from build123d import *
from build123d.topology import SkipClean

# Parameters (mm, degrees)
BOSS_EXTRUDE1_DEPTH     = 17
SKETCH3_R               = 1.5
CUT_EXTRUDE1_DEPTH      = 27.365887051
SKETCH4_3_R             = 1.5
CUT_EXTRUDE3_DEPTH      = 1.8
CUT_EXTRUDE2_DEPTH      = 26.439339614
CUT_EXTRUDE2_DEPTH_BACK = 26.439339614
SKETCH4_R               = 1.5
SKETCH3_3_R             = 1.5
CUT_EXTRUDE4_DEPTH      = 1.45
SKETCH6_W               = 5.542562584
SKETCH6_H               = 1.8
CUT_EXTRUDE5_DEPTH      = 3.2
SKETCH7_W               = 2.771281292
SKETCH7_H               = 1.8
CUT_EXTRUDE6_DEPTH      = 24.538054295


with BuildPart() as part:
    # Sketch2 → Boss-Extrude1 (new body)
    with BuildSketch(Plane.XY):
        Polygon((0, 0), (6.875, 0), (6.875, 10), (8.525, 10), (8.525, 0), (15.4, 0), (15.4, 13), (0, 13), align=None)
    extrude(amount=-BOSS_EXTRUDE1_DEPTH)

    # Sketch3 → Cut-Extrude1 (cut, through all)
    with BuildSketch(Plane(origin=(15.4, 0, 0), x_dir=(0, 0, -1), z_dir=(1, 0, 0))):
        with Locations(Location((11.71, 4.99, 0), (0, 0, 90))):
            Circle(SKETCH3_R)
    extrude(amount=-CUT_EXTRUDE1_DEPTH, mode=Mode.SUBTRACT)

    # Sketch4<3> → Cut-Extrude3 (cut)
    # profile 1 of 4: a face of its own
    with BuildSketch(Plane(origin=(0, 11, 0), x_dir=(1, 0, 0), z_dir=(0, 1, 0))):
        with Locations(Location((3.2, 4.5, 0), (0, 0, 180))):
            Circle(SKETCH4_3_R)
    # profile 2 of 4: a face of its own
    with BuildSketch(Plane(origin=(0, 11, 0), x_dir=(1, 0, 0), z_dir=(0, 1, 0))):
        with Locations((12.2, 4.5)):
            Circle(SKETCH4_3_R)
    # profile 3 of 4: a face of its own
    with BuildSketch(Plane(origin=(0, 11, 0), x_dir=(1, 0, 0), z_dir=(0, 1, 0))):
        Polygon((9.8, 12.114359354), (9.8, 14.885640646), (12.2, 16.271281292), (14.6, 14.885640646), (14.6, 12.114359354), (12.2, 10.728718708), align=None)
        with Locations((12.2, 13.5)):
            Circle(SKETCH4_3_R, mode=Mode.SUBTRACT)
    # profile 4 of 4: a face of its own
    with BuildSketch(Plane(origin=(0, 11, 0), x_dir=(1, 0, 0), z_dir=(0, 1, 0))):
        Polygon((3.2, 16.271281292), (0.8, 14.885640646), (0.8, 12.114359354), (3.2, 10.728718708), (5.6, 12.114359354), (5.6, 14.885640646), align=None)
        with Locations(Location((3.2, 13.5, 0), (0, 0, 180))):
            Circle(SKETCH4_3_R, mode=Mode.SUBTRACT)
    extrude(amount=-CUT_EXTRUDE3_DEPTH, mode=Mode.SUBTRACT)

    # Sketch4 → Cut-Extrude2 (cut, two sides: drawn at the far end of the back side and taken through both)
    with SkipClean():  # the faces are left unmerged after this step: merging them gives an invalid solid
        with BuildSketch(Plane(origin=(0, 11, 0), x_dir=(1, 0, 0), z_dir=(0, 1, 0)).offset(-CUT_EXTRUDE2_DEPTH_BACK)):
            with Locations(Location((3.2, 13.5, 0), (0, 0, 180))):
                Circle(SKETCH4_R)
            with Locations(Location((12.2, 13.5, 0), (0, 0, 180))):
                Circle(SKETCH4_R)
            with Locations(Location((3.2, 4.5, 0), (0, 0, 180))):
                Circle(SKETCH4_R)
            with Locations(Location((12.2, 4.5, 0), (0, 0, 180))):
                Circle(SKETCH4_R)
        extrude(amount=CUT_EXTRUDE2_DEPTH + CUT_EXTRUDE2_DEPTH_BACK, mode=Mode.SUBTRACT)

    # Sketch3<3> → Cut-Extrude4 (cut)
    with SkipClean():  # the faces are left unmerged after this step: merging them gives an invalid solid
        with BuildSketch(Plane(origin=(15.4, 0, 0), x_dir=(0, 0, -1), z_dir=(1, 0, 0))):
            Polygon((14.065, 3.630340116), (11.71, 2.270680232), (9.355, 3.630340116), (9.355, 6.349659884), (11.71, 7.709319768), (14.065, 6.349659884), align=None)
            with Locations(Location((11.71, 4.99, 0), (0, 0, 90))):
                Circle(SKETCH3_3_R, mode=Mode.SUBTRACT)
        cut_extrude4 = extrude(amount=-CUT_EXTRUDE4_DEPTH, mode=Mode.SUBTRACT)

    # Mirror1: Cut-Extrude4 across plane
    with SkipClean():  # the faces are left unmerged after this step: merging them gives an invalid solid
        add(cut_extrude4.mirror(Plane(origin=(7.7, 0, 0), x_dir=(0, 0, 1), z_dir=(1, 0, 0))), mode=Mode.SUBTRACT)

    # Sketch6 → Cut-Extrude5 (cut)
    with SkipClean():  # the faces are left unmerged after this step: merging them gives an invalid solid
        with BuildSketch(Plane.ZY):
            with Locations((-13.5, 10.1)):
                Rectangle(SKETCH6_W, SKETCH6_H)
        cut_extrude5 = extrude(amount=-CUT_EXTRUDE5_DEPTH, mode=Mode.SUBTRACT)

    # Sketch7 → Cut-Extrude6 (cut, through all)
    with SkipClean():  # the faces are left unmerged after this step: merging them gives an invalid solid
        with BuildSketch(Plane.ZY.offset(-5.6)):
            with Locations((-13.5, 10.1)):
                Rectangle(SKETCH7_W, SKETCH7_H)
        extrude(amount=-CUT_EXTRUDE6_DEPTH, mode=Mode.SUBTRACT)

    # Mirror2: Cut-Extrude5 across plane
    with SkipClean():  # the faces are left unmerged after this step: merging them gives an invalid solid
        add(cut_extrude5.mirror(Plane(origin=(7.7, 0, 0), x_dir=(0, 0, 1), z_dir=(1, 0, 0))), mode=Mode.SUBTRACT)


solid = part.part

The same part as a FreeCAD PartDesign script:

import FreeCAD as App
import Part
import Sketcher
from FreeCAD import Vector
Q = App.Units.Quantity

doc = App.newDocument("Part")
params = doc.addObject("Spreadsheet::Sheet", "Params")
for row, (alias, value) in enumerate([
    ("sketch1_height", "10 mm"),
    ("sketch1_height2", "13 mm"),
    ("sketch1_width", "15.4 mm"),
    ("sketch1_width2", "1.65 mm"),
    ("pad1_length", "17 mm"),
    ("sketch2_diameter", "3 mm"),
    ("sketch3_diameter", "3 mm"),
    ("pocket2_length", "1.8 mm"),
    ("sketch4_diameter", "3 mm"),
    ("sketch5_diameter", "3 mm"),
    ("pocket4_length", "1.45 mm"),
    ("sketch6_width", "1.8 mm"),
    ("pocket5_length", "3.2 mm"),
    ("sketch7_width", "1.8 mm"),
], start=1):
    params.set(f"A{row}", alias)
    params.set(f"B{row}", "=" + value)
    params.setAlias(f"B{row}", alias)

body = doc.addObject("PartDesign::Body", "Body")

# Sketch on XY plane
sketch1 = doc.addObject("Sketcher::SketchObject", "Sketch")
body.addObject(sketch1)
sketch1.AttachmentSupport = (doc.XY_Plane, [""])
sketch1.MapMode = "FlatFace"
sketch1.addGeometry([
    Part.LineSegment(Vector(0, 0, 0), Vector(6.9, 0, 0)),  # 0
    Part.LineSegment(Vector(6.9, 0, 0), Vector(6.9, 10, 0)),  # 1
    Part.LineSegment(Vector(6.9, 10, 0), Vector(8.5, 10, 0)),  # 2
    Part.LineSegment(Vector(8.5, 10, 0), Vector(8.5, 0, 0)),  # 3
    Part.LineSegment(Vector(8.5, 0, 0), Vector(15.4, 0, 0)),  # 4
    Part.LineSegment(Vector(15.4, 0, 0), Vector(15.4, 13, 0)),  # 5
    Part.LineSegment(Vector(15.4, 13, 0), Vector(0, 13, 0)),  # 6
    Part.LineSegment(Vector(0, 13, 0), Vector(0, 0, 0)),  # 7
], False)
sketch1.addConstraint([
    Sketcher.Constraint("Coincident", 0, 2, 1, 1),
    Sketcher.Constraint("Coincident", 1, 2, 2, 1),
    Sketcher.Constraint("Coincident", 2, 2, 3, 1),
    Sketcher.Constraint("Coincident", 3, 2, 4, 1),
    Sketcher.Constraint("Coincident", 4, 2, 5, 1),
    Sketcher.Constraint("Coincident", 5, 2, 6, 1),
    Sketcher.Constraint("Coincident", 6, 2, 7, 1),
    Sketcher.Constraint("Coincident", 7, 2, 0, 1),
    Sketcher.Constraint("Horizontal", 0),
    Sketcher.Constraint("Vertical", 1),
    Sketcher.Constraint("Horizontal", 2),
    Sketcher.Constraint("Vertical", 3),
    Sketcher.Constraint("Horizontal", 4),
    Sketcher.Constraint("Vertical", 5),
    Sketcher.Constraint("Horizontal", 6),
    Sketcher.Constraint("Vertical", 7),
    Sketcher.Constraint("Coincident", 7, 2, -1, 1),
    Sketcher.Constraint("PointOnObject", 3, 2, -1),
    Sketcher.Constraint("Equal", 0, 4),
    Sketcher.Constraint("DistanceY", 1, 1, 1, 2, Q("10 mm")),
    Sketcher.Constraint("DistanceY", 5, 1, 5, 2, Q("13 mm")),
    Sketcher.Constraint("DistanceX", 6, 2, 6, 1, Q("15.4 mm")),
    Sketcher.Constraint("DistanceX", 2, 1, 2, 2, Q("1.65 mm")),
])
sketch1.setExpression("Constraints[19]", "Params.sketch1_height")
sketch1.setExpression("Constraints[20]", "Params.sketch1_height2")
sketch1.setExpression("Constraints[21]", "Params.sketch1_width")
sketch1.setExpression("Constraints[22]", "Params.sketch1_width2")
pad1 = doc.addObject("PartDesign::Pad", "Pad")
body.addObject(pad1)
pad1.Profile = sketch1
pad1.setExpression("Length", "Params.pad1_length")
pad1.Reversed = True

# Sketch on YZ plane
sketch2 = doc.addObject("Sketcher::SketchObject", "Sketch001")
body.addObject(sketch2)
sketch2.AttachmentSupport = (doc.YZ_Plane, [""])
sketch2.MapMode = "FlatFace"
sketch2.AttachmentOffset = App.Placement(Vector(0, 0, 15.4), App.Rotation())
sketch2.addGeometry(Part.Circle(Vector(5, -11.7, 0), Vector(0, 0, 1), 1.5), False)
sketch2.addConstraint([
    Sketcher.Constraint("Diameter", 0, Q("3 mm")),
    Sketcher.Constraint("DistanceX", -1, 1, 0, 3, Q("4.99 mm")),
    Sketcher.Constraint("DistanceY", 0, 3, -1, 1, Q("11.71 mm")),
])
sketch2.setExpression("Constraints[0]", "Params.sketch2_diameter")
pocket1 = doc.addObject("PartDesign::Pocket", "Pocket")
body.addObject(pocket1)
pocket1.Profile = sketch2
pocket1.Type = "ThroughAll"

# Sketch on XZ plane
sketch3 = doc.addObject("Sketcher::SketchObject", "Sketch002")
body.addObject(sketch3)
sketch3.AttachmentSupport = (doc.XZ_Plane, [""])
sketch3.MapMode = "FlatFace"
sketch3.AttachmentOffset = App.Placement(Vector(0, 0, -11), App.Rotation())
sketch3.addGeometry([
    Part.Circle(Vector(3.2, -4.5, 0), Vector(0, 0, 1), 1.5),  # 0
    Part.Circle(Vector(12.2, -4.5, 0), Vector(0, 0, 1), 1.5),  # 1
    Part.LineSegment(Vector(9.8, -14.9, 0), Vector(9.8, -12.1, 0)),  # 2
    Part.LineSegment(Vector(9.8, -12.1, 0), Vector(12.2, -10.7, 0)),  # 3
    Part.LineSegment(Vector(12.2, -10.7, 0), Vector(14.6, -12.1, 0)),  # 4
    Part.LineSegment(Vector(14.6, -12.1, 0), Vector(14.6, -14.9, 0)),  # 5
    Part.LineSegment(Vector(14.6, -14.9, 0), Vector(12.2, -16.3, 0)),  # 6
    Part.LineSegment(Vector(12.2, -16.3, 0), Vector(9.8, -14.9, 0)),  # 7
    Part.Circle(Vector(12.2, -13.5, 0), Vector(0, 0, 1), 1.5),  # 8
    Part.LineSegment(Vector(3.2, -16.3, 0), Vector(0.8, -14.9, 0)),  # 9
    Part.LineSegment(Vector(0.8, -14.9, 0), Vector(0.8, -12.1, 0)),  # 10
    Part.LineSegment(Vector(0.8, -12.1, 0), Vector(3.2, -10.7, 0)),  # 11
    Part.LineSegment(Vector(3.2, -10.7, 0), Vector(5.6, -12.1, 0)),  # 12
    Part.LineSegment(Vector(5.6, -12.1, 0), Vector(5.6, -14.9, 0)),  # 13
    Part.LineSegment(Vector(5.6, -14.9, 0), Vector(3.2, -16.3, 0)),  # 14
    Part.Circle(Vector(3.2, -13.5, 0), Vector(0, 0, 1), 1.5),  # 15
], False)
sketch3.addConstraint([
    Sketcher.Constraint("Coincident", 2, 2, 3, 1),
    Sketcher.Constraint("Coincident", 3, 2, 4, 1),
    Sketcher.Constraint("Coincident", 4, 2, 5, 1),
    Sketcher.Constraint("Coincident", 5, 2, 6, 1),
    Sketcher.Constraint("Coincident", 6, 2, 7, 1),
    Sketcher.Constraint("Coincident", 7, 2, 2, 1),
    Sketcher.Constraint("Coincident", 9, 2, 10, 1),
    Sketcher.Constraint("Coincident", 10, 2, 11, 1),
    Sketcher.Constraint("Coincident", 11, 2, 12, 1),
    Sketcher.Constraint("Coincident", 12, 2, 13, 1),
    Sketcher.Constraint("Coincident", 13, 2, 14, 1),
    Sketcher.Constraint("Coincident", 14, 2, 9, 1),
    Sketcher.Constraint("Vertical", 2),
    Sketcher.Constraint("Vertical", 5),
    Sketcher.Constraint("Vertical", 10),
    Sketcher.Constraint("Vertical", 13),
    Sketcher.Constraint("Equal", 0, 1),
    Sketcher.Constraint("Equal", 1, 8),
    Sketcher.Constraint("Equal", 8, 15),
    Sketcher.Constraint("Parallel", 3, 6),
    Sketcher.Constraint("Parallel", 4, 7),
    Sketcher.Constraint("Parallel", 7, 9),
    Sketcher.Constraint("Parallel", 6, 11),
    Sketcher.Constraint("Parallel", 9, 12),
    Sketcher.Constraint("Parallel", 11, 14),
    Sketcher.Constraint("Horizontal", 0, 3, 1, 3),
    Sketcher.Constraint("Horizontal", 8, 3, 15, 3),
    Sketcher.Constraint("Horizontal", 2, 2, 4, 2),
    Sketcher.Constraint("Horizontal", 5, 2, 7, 2),
    Sketcher.Constraint("Horizontal", 7, 2, 9, 2),
    Sketcher.Constraint("Horizontal", 4, 2, 10, 2),
    Sketcher.Constraint("Horizontal", 3, 2, 11, 2),
    Sketcher.Constraint("Horizontal", 10, 2, 12, 2),
    Sketcher.Constraint("Horizontal", 9, 2, 13, 2),
    Sketcher.Constraint("Vertical", 1, 3, 8, 3),
    Sketcher.Constraint("Vertical", 0, 3, 15, 3),
    Sketcher.Constraint("Vertical", 8, 3, 3, 2),
    Sketcher.Constraint("Vertical", 3, 2, 6, 2),
    Sketcher.Constraint("Vertical", 15, 3, 11, 2),
    Sketcher.Constraint("Diameter", 0, Q("3 mm")),
    Sketcher.Constraint("Angle", 3, Q("30 deg")),
    Sketcher.Constraint("DistanceX", 0, 3, 1, 3, Q("9 mm")),
    Sketcher.Constraint("DistanceY", 8, 3, 1, 3, Q("9 mm")),
    Sketcher.Constraint("DistanceX", -1, 1, 0, 3, Q("3.2 mm")),
    Sketcher.Constraint("DistanceY", 0, 3, -1, 1, Q("4.5 mm")),
    Sketcher.Constraint("DistanceX", -1, 1, 2, 2, Q("9.8 mm")),
    Sketcher.Constraint("DistanceY", 2, 1, 2, 2, Q("2.771281 mm")),
    Sketcher.Constraint("DistanceY", 2, 2, -1, 1, Q("12.114359 mm")),
])
sketch3.setExpression("Constraints[39]", "Params.sketch3_diameter")
pocket2 = doc.addObject("PartDesign::Pocket", "Pocket001")
body.addObject(pocket2)
pocket2.Profile = sketch3
pocket2.setExpression("Length", "Params.pocket2_length")
pocket2.Reversed = True

# Sketch on XZ plane
sketch4 = doc.addObject("Sketcher::SketchObject", "Sketch003")
body.addObject(sketch4)
sketch4.AttachmentSupport = (doc.XZ_Plane, [""])
sketch4.MapMode = "FlatFace"
sketch4.AttachmentOffset = App.Placement(Vector(0, 0, -11), App.Rotation())
sketch4.addGeometry([
    Part.Circle(Vector(3.2, -13.5, 0), Vector(0, 0, 1), 1.5),
    Part.Circle(Vector(12.2, -13.5, 0), Vector(0, 0, 1), 1.5),
    Part.Circle(Vector(3.2, -4.5, 0), Vector(0, 0, 1), 1.5),
    Part.Circle(Vector(12.2, -4.5, 0), Vector(0, 0, 1), 1.5),
], False)
sketch4.addConstraint([
    Sketcher.Constraint("Equal", 0, 1),
    Sketcher.Constraint("Equal", 1, 2),
    Sketcher.Constraint("Equal", 2, 3),
    Sketcher.Constraint("Horizontal", 0, 3, 1, 3),
    Sketcher.Constraint("Horizontal", 2, 3, 3, 3),
    Sketcher.Constraint("Vertical", 0, 3, 2, 3),
    Sketcher.Constraint("Vertical", 1, 3, 3, 3),
    Sketcher.Constraint("Diameter", 0, Q("3 mm")),
    Sketcher.Constraint("DistanceX", 0, 3, 1, 3, Q("9 mm")),
    Sketcher.Constraint("DistanceY", 0, 3, 2, 3, Q("9 mm")),
    Sketcher.Constraint("DistanceX", -1, 1, 0, 3, Q("3.2 mm")),
    Sketcher.Constraint("DistanceY", 0, 3, -1, 1, Q("13.5 mm")),
])
sketch4.setExpression("Constraints[7]", "Params.sketch4_diameter")
pocket3 = doc.addObject("PartDesign::Pocket", "Pocket002")
body.addObject(pocket3)
pocket3.Profile = sketch4
pocket3.Type = "ThroughAll"
pocket3.Midplane = True

# Sketch on YZ plane
sketch5 = doc.addObject("Sketcher::SketchObject", "Sketch004")
body.addObject(sketch5)
sketch5.AttachmentSupport = (doc.YZ_Plane, [""])
sketch5.MapMode = "FlatFace"
sketch5.AttachmentOffset = App.Placement(Vector(0, 0, 15.4), App.Rotation())
sketch5.addGeometry([
    Part.LineSegment(Vector(2.3, -11.7, 0), Vector(3.6, -14.1, 0)),  # 0
    Part.LineSegment(Vector(3.6, -14.1, 0), Vector(6.3, -14.1, 0)),  # 1
    Part.LineSegment(Vector(6.3, -14.1, 0), Vector(7.7, -11.7, 0)),  # 2
    Part.LineSegment(Vector(7.7, -11.7, 0), Vector(6.3, -9.4, 0)),  # 3
    Part.LineSegment(Vector(6.3, -9.4, 0), Vector(3.6, -9.4, 0)),  # 4
    Part.LineSegment(Vector(3.6, -9.4, 0), Vector(2.3, -11.7, 0)),  # 5
    Part.Circle(Vector(5, -11.7, 0), Vector(0, 0, 1), 1.5),  # 6
], False)
sketch5.addConstraint([
    Sketcher.Constraint("Coincident", 0, 2, 1, 1),
    Sketcher.Constraint("Coincident", 1, 2, 2, 1),
    Sketcher.Constraint("Coincident", 2, 2, 3, 1),
    Sketcher.Constraint("Coincident", 3, 2, 4, 1),
    Sketcher.Constraint("Coincident", 4, 2, 5, 1),
    Sketcher.Constraint("Coincident", 5, 2, 0, 1),
    Sketcher.Constraint("Horizontal", 1),
    Sketcher.Constraint("Horizontal", 4),
    Sketcher.Constraint("Parallel", 0, 3),
    Sketcher.Constraint("Parallel", 2, 5),
    Sketcher.Constraint("Horizontal", 6, 3, 2, 2),
    Sketcher.Constraint("Horizontal", 2, 2, 5, 2),
    Sketcher.Constraint("Vertical", 1, 2, 3, 2),
    Sketcher.Constraint("Vertical", 0, 2, 4, 2),
    Sketcher.Constraint("Diameter", 6, Q("3 mm")),
    Sketcher.Constraint("Angle", 0, Q("-60 deg")),
    Sketcher.Constraint("DistanceX", -1, 1, 6, 3, Q("4.99 mm")),
    Sketcher.Constraint("DistanceY", 6, 3, -1, 1, Q("11.71 mm")),
    Sketcher.Constraint("DistanceY", 1, 2, 3, 2, Q("4.71 mm")),
    Sketcher.Constraint("DistanceX", 1, 1, 1, 2, Q("2.71932 mm")),
    Sketcher.Constraint("DistanceX", -1, 1, 0, 2, Q("3.63034 mm")),
])
sketch5.setExpression("Constraints[14]", "Params.sketch5_diameter")
pocket4 = doc.addObject("PartDesign::Pocket", "Pocket003")
body.addObject(pocket4)
pocket4.Profile = sketch5
pocket4.setExpression("Length", "Params.pocket4_length")
doc.recompute()

datumplane = doc.addObject("PartDesign::Plane", "DatumPlane")
body.addObject(datumplane)
datumplane.AttachmentSupport = (doc.YZ_Plane, [""])
datumplane.MapMode = "FlatFace"
datumplane.AttachmentOffset = App.Placement(Vector(0, 0, 7.7), App.Rotation())
mirrored = doc.addObject("PartDesign::Mirrored", "Mirrored")
body.addObject(mirrored)
mirrored.Originals = [pocket4]
mirrored.MirrorPlane = (datumplane, [""])
body.Tip = mirrored

# Sketch on YZ plane
sketch6 = doc.addObject("Sketcher::SketchObject", "Sketch005")
body.addObject(sketch6)
sketch6.AttachmentSupport = (doc.YZ_Plane, [""])
sketch6.MapMode = "FlatFace"
sketch6.addGeometry([
    Part.LineSegment(Vector(11, -16.3, 0), Vector(9.2, -16.3, 0)),
    Part.LineSegment(Vector(9.2, -16.3, 0), Vector(9.2, -10.7, 0)),
    Part.LineSegment(Vector(9.2, -10.7, 0), Vector(11, -10.7, 0)),
    Part.LineSegment(Vector(11, -10.7, 0), Vector(11, -16.3, 0)),
], False)
sketch6.addConstraint([
    Sketcher.Constraint("Coincident", 0, 2, 1, 1),
    Sketcher.Constraint("Coincident", 1, 2, 2, 1),
    Sketcher.Constraint("Coincident", 2, 2, 3, 1),
    Sketcher.Constraint("Coincident", 3, 2, 0, 1),
    Sketcher.Constraint("Horizontal", 0),
    Sketcher.Constraint("Vertical", 1),
    Sketcher.Constraint("Horizontal", 2),
    Sketcher.Constraint("Vertical", 3),
    Sketcher.Constraint("DistanceX", 0, 2, 0, 1, Q("1.8 mm")),
    Sketcher.Constraint("DistanceX", -1, 1, 2, 2, Q("11 mm")),
    Sketcher.Constraint("DistanceY", 1, 1, 1, 2, Q("5.542563 mm")),
    Sketcher.Constraint("DistanceY", 0, 2, -1, 1, Q("16.271281 mm")),
])
sketch6.setExpression("Constraints[8]", "Params.sketch6_width")
pocket5 = doc.addObject("PartDesign::Pocket", "Pocket004")
body.addObject(pocket5)
pocket5.Profile = sketch6
pocket5.setExpression("Length", "Params.pocket5_length")
pocket5.Reversed = True

# Sketch on YZ plane
sketch7 = doc.addObject("Sketcher::SketchObject", "Sketch006")
body.addObject(sketch7)
sketch7.AttachmentSupport = (doc.YZ_Plane, [""])
sketch7.MapMode = "FlatFace"
sketch7.AttachmentOffset = App.Placement(Vector(0, 0, 5.6), App.Rotation())
sketch7.addGeometry([
    Part.LineSegment(Vector(11, -14.9, 0), Vector(9.2, -14.9, 0)),
    Part.LineSegment(Vector(9.2, -14.9, 0), Vector(9.2, -12.1, 0)),
    Part.LineSegment(Vector(9.2, -12.1, 0), Vector(11, -12.1, 0)),
    Part.LineSegment(Vector(11, -12.1, 0), Vector(11, -14.9, 0)),
], False)
sketch7.addConstraint([
    Sketcher.Constraint("Coincident", 0, 2, 1, 1),
    Sketcher.Constraint("Coincident", 1, 2, 2, 1),
    Sketcher.Constraint("Coincident", 2, 2, 3, 1),
    Sketcher.Constraint("Coincident", 3, 2, 0, 1),
    Sketcher.Constraint("Horizontal", 0),
    Sketcher.Constraint("Vertical", 1),
    Sketcher.Constraint("Horizontal", 2),
    Sketcher.Constraint("Vertical", 3),
    Sketcher.Constraint("DistanceX", 0, 2, 0, 1, Q("1.8 mm")),
    Sketcher.Constraint("DistanceX", -1, 1, 2, 2, Q("11 mm")),
    Sketcher.Constraint("DistanceY", 1, 1, 1, 2, Q("2.771281 mm")),
    Sketcher.Constraint("DistanceY", 0, 2, -1, 1, Q("14.885641 mm")),
])
sketch7.setExpression("Constraints[8]", "Params.sketch7_width")
pocket6 = doc.addObject("PartDesign::Pocket", "Pocket005")
body.addObject(pocket6)
pocket6.Profile = sketch7
pocket6.Type = "ThroughAll"
pocket6.Reversed = True
doc.recompute()

datumplane2 = doc.addObject("PartDesign::Plane", "DatumPlane001")
body.addObject(datumplane2)
datumplane2.AttachmentSupport = (doc.YZ_Plane, [""])
datumplane2.MapMode = "FlatFace"
datumplane2.AttachmentOffset = App.Placement(Vector(0, 0, 7.7), App.Rotation())
mirrored2 = doc.addObject("PartDesign::Mirrored", "Mirrored001")
body.addObject(mirrored2)
mirrored2.Originals = [pocket5]
mirrored2.MirrorPlane = (datumplane2, [""])
body.Tip = mirrored2

doc.recompute()
